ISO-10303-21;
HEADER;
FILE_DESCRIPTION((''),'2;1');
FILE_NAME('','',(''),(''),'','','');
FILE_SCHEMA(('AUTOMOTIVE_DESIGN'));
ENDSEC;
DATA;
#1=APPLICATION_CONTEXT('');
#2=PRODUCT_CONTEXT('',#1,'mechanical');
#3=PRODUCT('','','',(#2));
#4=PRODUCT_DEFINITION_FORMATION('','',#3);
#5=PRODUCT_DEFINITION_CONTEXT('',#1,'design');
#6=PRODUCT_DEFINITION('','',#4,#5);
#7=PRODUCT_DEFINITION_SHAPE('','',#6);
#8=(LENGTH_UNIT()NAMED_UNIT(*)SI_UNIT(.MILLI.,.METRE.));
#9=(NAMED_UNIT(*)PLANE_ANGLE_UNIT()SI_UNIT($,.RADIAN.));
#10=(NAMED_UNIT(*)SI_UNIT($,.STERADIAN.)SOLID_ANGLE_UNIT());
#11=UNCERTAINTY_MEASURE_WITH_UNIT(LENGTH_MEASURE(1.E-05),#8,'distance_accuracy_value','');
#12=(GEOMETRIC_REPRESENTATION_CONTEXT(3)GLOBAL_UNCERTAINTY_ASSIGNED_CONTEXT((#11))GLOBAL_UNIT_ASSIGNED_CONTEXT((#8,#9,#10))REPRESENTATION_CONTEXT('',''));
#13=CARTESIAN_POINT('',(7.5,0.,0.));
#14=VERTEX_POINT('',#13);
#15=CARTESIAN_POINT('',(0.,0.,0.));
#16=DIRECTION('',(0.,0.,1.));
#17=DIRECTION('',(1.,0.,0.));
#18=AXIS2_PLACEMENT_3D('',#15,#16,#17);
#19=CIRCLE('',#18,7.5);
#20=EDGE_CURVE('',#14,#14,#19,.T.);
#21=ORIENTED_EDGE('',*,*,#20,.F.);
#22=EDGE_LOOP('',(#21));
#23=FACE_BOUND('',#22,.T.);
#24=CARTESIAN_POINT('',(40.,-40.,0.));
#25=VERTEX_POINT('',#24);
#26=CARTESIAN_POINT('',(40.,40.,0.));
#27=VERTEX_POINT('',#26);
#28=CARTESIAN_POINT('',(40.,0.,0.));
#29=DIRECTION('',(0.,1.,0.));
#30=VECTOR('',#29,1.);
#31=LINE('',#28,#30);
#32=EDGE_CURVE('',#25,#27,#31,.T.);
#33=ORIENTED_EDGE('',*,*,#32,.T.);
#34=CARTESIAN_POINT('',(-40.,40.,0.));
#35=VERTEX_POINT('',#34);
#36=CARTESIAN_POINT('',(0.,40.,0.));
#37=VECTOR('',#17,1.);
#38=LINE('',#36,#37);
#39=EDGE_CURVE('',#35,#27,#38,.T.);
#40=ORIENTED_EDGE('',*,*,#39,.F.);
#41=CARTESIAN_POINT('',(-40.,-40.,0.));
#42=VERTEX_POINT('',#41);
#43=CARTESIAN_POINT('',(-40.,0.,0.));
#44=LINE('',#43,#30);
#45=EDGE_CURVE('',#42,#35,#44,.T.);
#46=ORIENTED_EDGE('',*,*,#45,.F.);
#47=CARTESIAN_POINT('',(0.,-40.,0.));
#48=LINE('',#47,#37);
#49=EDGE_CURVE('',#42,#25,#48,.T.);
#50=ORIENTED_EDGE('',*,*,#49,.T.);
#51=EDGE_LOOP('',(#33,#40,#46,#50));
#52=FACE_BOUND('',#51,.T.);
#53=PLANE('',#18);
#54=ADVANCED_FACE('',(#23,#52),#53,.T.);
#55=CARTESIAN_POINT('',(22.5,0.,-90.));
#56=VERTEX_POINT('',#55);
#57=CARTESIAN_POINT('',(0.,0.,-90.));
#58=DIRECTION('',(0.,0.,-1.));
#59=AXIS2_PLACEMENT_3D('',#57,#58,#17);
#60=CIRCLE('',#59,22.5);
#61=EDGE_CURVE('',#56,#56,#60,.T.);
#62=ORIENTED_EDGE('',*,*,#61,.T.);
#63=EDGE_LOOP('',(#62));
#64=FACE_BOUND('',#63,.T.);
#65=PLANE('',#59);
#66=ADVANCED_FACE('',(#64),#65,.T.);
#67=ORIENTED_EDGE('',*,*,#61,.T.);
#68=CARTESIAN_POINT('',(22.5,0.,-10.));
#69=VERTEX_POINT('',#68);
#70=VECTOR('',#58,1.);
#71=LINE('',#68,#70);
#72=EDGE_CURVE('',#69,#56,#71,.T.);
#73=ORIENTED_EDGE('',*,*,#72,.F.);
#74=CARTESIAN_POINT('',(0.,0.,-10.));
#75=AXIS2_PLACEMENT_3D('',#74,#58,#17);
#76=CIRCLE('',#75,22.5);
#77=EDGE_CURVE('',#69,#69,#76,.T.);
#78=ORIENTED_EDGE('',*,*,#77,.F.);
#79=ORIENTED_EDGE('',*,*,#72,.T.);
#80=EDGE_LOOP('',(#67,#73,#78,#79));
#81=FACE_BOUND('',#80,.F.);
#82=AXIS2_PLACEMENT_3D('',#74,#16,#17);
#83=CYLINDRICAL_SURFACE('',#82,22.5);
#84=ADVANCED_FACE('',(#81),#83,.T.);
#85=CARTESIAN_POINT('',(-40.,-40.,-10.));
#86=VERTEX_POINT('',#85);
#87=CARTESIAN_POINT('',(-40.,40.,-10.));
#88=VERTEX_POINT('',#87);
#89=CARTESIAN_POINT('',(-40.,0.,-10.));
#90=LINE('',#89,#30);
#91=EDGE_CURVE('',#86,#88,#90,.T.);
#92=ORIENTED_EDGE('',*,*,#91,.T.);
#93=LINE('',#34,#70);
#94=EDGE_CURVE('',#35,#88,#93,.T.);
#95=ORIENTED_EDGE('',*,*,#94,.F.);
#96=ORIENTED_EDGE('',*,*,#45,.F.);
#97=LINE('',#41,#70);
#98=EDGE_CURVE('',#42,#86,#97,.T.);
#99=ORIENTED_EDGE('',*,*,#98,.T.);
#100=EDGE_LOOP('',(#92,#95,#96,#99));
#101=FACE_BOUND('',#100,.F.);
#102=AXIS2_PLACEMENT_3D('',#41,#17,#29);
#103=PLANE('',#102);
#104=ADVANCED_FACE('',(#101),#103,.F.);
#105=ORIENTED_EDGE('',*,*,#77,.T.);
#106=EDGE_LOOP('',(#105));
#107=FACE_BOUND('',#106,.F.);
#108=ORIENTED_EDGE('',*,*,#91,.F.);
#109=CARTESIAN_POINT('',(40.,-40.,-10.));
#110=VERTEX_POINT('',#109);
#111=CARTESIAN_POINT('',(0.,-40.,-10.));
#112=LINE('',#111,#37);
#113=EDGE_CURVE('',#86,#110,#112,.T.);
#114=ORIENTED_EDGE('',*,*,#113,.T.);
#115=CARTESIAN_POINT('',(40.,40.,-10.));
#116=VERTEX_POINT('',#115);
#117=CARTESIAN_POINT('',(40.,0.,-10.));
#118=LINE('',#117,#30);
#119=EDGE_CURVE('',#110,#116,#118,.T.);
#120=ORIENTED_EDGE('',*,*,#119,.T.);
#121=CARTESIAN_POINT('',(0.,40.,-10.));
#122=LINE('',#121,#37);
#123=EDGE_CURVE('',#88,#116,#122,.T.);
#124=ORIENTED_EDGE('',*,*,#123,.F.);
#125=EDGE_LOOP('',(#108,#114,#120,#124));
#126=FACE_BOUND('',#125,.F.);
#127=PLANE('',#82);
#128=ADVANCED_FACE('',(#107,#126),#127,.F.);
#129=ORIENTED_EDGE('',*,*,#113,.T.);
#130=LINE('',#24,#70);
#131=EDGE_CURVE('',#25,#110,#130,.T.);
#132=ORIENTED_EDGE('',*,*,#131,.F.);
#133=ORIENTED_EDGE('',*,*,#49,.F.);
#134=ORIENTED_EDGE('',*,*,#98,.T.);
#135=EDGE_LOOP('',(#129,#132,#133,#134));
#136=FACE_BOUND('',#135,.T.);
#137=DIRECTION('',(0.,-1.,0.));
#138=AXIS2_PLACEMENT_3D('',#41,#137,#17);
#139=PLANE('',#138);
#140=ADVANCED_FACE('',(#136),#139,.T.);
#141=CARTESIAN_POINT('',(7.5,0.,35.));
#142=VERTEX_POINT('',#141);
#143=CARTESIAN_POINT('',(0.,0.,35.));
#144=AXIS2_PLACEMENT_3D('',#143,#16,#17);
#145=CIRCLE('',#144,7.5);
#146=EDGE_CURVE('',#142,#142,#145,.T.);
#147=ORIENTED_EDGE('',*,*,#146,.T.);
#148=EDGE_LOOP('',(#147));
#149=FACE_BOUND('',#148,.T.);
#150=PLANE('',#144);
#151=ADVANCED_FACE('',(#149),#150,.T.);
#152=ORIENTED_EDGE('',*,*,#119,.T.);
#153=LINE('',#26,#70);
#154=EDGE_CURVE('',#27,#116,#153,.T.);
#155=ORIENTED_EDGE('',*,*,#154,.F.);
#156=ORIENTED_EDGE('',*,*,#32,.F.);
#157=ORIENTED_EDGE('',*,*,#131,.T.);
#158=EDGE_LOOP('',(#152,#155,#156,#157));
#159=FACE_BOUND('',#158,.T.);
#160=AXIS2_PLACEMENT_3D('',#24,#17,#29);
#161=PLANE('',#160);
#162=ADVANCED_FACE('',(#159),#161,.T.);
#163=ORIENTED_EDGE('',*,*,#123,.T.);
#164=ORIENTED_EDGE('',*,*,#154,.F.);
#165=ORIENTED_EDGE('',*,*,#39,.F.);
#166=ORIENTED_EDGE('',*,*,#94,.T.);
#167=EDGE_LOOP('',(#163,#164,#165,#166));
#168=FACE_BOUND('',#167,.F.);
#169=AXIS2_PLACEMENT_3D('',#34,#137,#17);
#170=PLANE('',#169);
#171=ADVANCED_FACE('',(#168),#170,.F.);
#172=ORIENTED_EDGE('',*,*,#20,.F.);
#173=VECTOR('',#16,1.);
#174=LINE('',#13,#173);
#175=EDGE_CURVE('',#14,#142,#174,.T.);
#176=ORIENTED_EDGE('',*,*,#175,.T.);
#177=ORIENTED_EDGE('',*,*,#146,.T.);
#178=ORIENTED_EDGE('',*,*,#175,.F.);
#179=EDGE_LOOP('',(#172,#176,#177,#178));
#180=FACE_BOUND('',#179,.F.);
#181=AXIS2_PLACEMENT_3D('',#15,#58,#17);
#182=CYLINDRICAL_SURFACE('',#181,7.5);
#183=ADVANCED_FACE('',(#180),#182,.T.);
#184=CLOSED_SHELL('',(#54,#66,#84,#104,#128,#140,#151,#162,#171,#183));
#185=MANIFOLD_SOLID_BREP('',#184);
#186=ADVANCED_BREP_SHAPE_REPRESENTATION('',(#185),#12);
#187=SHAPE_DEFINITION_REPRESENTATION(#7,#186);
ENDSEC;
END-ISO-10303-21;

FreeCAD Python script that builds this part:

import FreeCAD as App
import Part
import Sketcher
Q = App.Units.Quantity

doc = App.newDocument("Part")
body = doc.addObject("PartDesign::Body", "Body")

# Sketch on XY plane
sketch1 = body.newObject("Sketcher::SketchObject", "Sketch")
sketch1.AttachmentSupport = (doc.getObject("XY_Plane"), [""])
sketch1.MapMode = "FlatFace"
sketch1.addGeometry([
    Part.LineSegment(App.Vector(-40, 40, 0), App.Vector(-40, -40, 0)),
    Part.LineSegment(App.Vector(-40, -40, 0), App.Vector(40, -40, 0)),
    Part.LineSegment(App.Vector(40, -40, 0), App.Vector(40, 40, 0)),
    Part.LineSegment(App.Vector(40, 40, 0), App.Vector(-40, 40, 0)),
], False)
sketch1.addConstraint([
    Sketcher.Constraint("Coincident", 0, 2, 1, 1),
    Sketcher.Constraint("Coincident", 1, 2, 2, 1),
    Sketcher.Constraint("Coincident", 2, 2, 3, 1),
    Sketcher.Constraint("Coincident", 3, 2, 0, 1),
    Sketcher.Constraint("Vertical", 0),
    Sketcher.Constraint("Horizontal", 1),
    Sketcher.Constraint("Vertical", 2),
    Sketcher.Constraint("Horizontal", 3),
    Sketcher.Constraint("Symmetric", 0, 2, 2, 2, -1, 1),
    Sketcher.Constraint("Equal", 3, 0),
    Sketcher.Constraint("DistanceX", 1, 1, 1, 2, Q("80 mm")),
])
pad1 = body.newObject("PartDesign::Pad", "Pad")
pad1.Profile = sketch1
pad1.Length = 10
pad1.Reversed = True

# Sketch on XY plane
sketch2 = body.newObject("Sketcher::SketchObject", "Sketch001")
sketch2.AttachmentSupport = (doc.getObject("XY_Plane"), [""])
sketch2.MapMode = "FlatFace"
sketch2.AttachmentOffset = App.Placement(App.Vector(0, 0, -10), App.Rotation())
sketch2.addGeometry(Part.Circle(App.Vector(0, 0, 0), App.Vector(0, 0, 1), 22), False)
sketch2.addConstraint([
    Sketcher.Constraint("Coincident", 0, 3, -1, 1),
    Sketcher.Constraint("Diameter", 0, Q("45 mm")),
])
pad2 = body.newObject("PartDesign::Pad", "Pad001")
pad2.Profile = sketch2
pad2.Length = 80
pad2.Reversed = True

# Sketch on XY plane
sketch3 = body.newObject("Sketcher::SketchObject", "Sketch002")
sketch3.AttachmentSupport = (doc.getObject("XY_Plane"), [""])
sketch3.MapMode = "FlatFace"
sketch3.addGeometry(Part.Circle(App.Vector(0, 0, 0), App.Vector(0, 0, 1), 8), False)
sketch3.addConstraint([
    Sketcher.Constraint("Coincident", 0, 3, -1, 1),
    Sketcher.Constraint("Diameter", 0, Q("15 mm")),
])
pad3 = body.newObject("PartDesign::Pad", "Pad002")
pad3.Profile = sketch3
pad3.Length = 35

doc.recompute()
